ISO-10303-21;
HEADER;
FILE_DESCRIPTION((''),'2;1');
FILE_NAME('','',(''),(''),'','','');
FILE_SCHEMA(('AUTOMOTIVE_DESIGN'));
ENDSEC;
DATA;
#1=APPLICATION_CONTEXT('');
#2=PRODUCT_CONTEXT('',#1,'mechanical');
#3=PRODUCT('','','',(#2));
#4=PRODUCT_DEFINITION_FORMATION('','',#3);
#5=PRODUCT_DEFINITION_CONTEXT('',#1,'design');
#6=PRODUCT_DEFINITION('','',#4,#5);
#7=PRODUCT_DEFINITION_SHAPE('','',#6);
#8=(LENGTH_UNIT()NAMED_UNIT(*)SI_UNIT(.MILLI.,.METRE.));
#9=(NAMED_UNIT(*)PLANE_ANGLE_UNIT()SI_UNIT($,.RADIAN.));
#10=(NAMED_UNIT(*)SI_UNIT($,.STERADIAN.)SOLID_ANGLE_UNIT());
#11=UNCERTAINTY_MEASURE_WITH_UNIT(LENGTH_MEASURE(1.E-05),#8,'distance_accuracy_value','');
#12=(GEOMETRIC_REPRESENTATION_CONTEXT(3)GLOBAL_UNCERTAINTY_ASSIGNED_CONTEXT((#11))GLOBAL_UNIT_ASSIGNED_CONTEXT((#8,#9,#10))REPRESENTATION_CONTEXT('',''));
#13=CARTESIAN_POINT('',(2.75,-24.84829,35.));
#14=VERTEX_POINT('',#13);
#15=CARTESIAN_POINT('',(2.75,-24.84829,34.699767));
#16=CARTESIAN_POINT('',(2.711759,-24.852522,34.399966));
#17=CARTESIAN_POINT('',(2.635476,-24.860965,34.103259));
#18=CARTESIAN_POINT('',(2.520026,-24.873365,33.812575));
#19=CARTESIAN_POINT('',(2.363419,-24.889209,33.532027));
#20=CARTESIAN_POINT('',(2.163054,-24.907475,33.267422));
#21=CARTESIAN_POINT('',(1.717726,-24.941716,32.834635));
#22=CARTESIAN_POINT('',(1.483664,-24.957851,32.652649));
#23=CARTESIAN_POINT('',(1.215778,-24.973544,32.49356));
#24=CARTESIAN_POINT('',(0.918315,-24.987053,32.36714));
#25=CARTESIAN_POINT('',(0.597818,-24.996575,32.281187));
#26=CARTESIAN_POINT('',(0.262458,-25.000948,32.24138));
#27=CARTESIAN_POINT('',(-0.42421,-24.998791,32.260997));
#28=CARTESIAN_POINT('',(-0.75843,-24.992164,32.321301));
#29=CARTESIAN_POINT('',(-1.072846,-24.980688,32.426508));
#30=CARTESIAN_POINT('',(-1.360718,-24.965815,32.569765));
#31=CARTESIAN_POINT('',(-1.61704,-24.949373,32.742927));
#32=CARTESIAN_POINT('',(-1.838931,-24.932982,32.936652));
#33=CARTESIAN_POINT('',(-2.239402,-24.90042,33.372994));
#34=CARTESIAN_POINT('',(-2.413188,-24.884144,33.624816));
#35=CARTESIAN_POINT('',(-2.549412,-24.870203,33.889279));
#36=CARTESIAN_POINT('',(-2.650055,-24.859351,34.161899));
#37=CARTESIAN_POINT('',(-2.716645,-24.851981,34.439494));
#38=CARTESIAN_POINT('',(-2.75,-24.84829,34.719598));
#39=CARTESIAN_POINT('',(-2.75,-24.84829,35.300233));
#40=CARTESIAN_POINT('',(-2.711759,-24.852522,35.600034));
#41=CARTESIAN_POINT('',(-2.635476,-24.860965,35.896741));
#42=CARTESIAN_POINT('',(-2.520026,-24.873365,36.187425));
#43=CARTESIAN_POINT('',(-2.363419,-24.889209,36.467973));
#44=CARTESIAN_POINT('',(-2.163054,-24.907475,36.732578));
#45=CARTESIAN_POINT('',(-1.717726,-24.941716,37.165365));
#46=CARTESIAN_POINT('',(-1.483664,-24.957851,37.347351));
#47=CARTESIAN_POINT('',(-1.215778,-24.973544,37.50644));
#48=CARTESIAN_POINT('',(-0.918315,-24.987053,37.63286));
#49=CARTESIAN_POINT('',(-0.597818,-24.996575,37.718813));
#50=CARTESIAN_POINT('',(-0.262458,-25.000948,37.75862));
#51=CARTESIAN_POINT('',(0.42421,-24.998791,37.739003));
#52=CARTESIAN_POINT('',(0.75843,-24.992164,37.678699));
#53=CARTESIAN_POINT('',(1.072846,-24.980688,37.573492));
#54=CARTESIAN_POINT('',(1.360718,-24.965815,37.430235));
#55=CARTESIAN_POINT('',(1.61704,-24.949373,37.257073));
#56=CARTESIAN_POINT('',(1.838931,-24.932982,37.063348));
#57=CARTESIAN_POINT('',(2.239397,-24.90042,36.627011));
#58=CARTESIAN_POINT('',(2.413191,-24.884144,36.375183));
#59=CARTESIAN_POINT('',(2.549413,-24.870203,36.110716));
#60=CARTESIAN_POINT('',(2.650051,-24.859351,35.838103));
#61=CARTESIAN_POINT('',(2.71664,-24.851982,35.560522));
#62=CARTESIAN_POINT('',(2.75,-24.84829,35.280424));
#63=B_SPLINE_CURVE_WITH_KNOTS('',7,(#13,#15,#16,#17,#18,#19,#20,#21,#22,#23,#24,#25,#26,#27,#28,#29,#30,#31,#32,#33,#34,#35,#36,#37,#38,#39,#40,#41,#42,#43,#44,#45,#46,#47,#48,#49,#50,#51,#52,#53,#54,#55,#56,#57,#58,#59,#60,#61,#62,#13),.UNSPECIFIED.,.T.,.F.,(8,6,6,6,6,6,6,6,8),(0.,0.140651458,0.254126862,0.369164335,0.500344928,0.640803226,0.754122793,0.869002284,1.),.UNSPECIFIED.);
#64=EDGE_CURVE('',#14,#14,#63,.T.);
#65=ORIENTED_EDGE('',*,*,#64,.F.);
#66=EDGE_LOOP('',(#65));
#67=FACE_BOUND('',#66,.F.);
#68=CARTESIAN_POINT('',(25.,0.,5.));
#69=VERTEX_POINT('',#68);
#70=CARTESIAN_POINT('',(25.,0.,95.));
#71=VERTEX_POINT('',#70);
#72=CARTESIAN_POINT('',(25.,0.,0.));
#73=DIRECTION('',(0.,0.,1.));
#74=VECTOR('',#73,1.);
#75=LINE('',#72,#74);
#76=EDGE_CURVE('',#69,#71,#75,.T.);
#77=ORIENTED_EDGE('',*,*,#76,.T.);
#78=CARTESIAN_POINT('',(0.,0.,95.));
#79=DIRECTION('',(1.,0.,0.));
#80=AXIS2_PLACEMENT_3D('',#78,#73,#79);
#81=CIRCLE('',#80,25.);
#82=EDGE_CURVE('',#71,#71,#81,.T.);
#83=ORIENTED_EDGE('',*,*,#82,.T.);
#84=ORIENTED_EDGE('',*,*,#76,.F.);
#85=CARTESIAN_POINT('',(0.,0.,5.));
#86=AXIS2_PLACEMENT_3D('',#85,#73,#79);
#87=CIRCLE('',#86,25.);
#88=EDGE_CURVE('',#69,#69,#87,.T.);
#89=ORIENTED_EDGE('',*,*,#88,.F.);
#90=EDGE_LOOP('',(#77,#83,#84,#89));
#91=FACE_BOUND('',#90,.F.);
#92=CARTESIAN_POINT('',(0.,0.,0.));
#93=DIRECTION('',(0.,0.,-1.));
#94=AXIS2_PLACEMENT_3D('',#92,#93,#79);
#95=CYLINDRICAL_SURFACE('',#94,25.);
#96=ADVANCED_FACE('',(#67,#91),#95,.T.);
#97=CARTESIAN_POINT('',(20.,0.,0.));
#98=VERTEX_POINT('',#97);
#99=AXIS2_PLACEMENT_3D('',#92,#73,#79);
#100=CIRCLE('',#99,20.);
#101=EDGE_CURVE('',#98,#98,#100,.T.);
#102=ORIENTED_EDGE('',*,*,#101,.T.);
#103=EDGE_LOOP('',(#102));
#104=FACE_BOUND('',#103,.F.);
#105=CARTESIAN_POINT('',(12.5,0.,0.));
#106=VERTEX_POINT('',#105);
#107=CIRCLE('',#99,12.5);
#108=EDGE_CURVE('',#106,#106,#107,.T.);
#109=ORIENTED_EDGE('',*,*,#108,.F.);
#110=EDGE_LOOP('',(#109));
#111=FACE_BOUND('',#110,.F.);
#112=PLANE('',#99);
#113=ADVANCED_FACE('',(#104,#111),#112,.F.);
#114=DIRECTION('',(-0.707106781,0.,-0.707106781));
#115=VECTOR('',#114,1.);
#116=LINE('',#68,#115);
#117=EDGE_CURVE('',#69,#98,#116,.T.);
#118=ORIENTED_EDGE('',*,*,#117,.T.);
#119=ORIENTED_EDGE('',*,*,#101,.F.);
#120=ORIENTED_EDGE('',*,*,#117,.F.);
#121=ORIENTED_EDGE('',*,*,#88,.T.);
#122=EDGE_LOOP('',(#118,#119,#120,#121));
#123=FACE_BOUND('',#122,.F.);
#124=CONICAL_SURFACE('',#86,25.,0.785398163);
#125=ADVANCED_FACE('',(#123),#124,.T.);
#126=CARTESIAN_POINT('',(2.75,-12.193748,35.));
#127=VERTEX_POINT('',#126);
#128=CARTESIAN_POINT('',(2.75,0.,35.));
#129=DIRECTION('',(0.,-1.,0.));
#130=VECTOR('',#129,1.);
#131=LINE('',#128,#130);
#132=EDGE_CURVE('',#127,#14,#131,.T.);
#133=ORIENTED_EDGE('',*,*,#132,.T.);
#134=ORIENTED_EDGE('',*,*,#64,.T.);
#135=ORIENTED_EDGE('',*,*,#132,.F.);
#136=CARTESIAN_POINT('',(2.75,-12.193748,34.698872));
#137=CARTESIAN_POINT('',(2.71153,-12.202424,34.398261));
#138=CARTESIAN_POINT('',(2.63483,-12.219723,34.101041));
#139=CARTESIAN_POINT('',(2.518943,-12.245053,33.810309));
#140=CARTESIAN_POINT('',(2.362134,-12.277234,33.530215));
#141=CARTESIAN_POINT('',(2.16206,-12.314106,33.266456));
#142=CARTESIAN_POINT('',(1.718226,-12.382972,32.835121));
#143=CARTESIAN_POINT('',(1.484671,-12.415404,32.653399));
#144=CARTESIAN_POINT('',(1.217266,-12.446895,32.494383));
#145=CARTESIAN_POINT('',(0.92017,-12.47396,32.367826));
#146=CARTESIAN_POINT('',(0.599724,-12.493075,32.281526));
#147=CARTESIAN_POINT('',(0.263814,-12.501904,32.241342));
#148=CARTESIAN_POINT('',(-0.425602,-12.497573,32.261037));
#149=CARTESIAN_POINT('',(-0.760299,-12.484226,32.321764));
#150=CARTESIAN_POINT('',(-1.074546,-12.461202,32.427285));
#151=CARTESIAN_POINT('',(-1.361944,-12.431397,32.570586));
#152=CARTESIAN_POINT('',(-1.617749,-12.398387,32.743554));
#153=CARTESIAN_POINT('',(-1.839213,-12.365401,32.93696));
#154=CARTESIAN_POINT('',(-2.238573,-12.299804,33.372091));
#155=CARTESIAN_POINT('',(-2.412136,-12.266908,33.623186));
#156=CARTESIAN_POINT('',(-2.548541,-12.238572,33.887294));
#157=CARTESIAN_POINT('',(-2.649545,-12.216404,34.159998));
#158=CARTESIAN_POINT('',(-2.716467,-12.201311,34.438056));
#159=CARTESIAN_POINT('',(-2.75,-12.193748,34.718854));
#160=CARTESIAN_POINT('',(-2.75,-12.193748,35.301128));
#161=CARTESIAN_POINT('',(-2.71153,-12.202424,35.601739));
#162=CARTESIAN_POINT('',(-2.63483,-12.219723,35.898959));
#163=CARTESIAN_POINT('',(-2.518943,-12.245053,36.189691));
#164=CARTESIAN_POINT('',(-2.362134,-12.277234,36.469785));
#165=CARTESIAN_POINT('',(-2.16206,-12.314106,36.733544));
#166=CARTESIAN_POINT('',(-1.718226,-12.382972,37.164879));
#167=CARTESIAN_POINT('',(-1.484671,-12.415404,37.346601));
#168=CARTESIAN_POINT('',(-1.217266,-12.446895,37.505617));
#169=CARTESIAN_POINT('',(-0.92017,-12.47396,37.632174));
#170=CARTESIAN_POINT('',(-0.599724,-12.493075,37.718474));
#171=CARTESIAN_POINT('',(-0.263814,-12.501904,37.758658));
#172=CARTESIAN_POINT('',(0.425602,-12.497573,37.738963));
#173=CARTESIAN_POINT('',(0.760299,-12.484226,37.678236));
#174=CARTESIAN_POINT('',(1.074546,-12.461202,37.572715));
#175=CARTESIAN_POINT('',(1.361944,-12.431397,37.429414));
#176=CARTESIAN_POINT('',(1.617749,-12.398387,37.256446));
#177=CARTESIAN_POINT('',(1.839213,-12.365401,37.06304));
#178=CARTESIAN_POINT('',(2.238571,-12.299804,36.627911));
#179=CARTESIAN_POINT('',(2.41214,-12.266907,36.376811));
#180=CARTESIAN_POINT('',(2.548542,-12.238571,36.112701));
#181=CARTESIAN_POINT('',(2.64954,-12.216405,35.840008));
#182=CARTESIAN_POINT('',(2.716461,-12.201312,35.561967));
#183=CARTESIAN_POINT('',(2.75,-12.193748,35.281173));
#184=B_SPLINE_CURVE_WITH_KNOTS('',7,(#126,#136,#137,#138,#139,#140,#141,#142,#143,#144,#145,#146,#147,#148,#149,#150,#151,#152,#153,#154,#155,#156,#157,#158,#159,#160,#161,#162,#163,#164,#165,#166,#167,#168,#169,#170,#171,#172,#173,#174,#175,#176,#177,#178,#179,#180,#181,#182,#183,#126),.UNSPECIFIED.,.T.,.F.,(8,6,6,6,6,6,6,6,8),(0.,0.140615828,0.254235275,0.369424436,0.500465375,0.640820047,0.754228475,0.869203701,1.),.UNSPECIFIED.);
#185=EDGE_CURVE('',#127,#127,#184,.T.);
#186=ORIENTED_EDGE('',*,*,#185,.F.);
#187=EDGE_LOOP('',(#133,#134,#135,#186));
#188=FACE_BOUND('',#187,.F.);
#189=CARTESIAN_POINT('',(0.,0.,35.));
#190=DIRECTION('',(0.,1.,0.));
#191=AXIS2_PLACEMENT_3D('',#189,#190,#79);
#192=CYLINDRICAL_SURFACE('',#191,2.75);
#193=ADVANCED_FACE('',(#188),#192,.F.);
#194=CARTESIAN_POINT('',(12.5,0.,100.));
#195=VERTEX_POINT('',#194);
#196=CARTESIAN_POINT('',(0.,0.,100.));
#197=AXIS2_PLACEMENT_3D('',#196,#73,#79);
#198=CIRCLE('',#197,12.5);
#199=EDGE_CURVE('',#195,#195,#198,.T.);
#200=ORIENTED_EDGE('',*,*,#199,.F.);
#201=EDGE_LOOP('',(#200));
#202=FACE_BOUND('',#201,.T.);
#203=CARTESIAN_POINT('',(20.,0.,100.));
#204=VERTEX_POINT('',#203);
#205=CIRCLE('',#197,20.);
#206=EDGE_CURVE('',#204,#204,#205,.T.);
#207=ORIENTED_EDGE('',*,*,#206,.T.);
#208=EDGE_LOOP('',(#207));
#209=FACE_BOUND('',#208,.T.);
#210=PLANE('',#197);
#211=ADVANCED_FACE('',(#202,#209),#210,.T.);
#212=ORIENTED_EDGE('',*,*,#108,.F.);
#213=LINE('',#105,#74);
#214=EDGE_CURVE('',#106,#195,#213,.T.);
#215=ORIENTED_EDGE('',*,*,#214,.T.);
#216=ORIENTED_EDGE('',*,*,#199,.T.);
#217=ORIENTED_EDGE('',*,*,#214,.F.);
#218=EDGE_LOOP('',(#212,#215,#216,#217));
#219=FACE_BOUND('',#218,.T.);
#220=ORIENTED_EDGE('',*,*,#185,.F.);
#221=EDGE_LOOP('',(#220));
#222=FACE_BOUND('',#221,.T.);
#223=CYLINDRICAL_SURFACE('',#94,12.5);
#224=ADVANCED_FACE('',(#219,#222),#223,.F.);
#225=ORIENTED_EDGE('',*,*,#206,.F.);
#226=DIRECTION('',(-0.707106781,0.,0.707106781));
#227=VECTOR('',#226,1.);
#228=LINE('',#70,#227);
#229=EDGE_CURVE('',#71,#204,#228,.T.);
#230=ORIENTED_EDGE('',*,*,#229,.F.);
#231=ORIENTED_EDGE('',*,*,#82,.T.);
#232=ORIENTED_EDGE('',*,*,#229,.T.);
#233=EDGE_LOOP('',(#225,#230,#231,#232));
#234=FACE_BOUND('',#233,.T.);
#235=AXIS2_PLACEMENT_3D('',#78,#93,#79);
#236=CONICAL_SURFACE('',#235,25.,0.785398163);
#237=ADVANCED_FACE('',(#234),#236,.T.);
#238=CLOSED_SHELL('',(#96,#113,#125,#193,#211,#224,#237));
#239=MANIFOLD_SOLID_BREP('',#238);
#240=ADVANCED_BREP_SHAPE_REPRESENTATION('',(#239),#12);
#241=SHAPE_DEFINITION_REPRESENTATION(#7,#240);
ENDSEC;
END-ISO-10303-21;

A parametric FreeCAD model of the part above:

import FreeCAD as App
import Part
import Sketcher
from FreeCAD import Vector
Q = App.Units.Quantity


def edges_at(feature, points):
    """Names of the edges that pass closest to the given points."""
    edges = feature.Shape.Edges
    near = lambda p: min(range(len(edges)), key=lambda i: edges[i].distToShape(Part.Vertex(*p))[0])
    return sorted({f"Edge{near(p) + 1}" for p in points})

doc = App.newDocument("Part")
params = doc.addObject("Spreadsheet::Sheet", "Params")
for row, (alias, value) in enumerate([
    ("sketch1_diameter", "50 mm"),
    ("sketch1_diameter2", "25 mm"),
    ("pad1_length", "100 mm"),
    ("chamfer_size", "5 mm"),
    ("chamfer2_size", "5 mm"),
    ("sketch2_diameter", "5.5 mm"),
], start=1):
    params.set(f"A{row}", alias)
    params.set(f"B{row}", "=" + value)
    params.setAlias(f"B{row}", alias)

body = doc.addObject("PartDesign::Body", "Body")

# Sketch on XY plane
sketch1 = body.newObject("Sketcher::SketchObject", "Sketch")
sketch1.AttachmentSupport = (doc.getObject("XY_Plane"), [""])
sketch1.MapMode = "FlatFace"
sketch1.addGeometry(Part.Circle(Vector(0, 0, 0), Vector(0, 0, 1), 25), False)
sketch1.addGeometry(Part.Circle(Vector(0, 0, 0), Vector(0, 0, 1), 12), False)
sketch1.addConstraint(Sketcher.Constraint("Coincident", 0, 3, -1, 1))
sketch1.addConstraint(Sketcher.Constraint("Coincident", 1, 3, -1, 1))
sketch1.addConstraint(Sketcher.Constraint("Diameter", 0, Q("50 mm")))
sketch1.addConstraint(Sketcher.Constraint("Diameter", 1, Q("25 mm")))
sketch1.setExpression("Constraints[2]", "Params.sketch1_diameter")
sketch1.setExpression("Constraints[3]", "Params.sketch1_diameter2")
pad1 = body.newObject("PartDesign::Pad", "Pad")
pad1.Profile = sketch1
pad1.setExpression("Length", "Params.pad1_length")
doc.recompute()

chamfer = body.newObject("PartDesign::Chamfer", "Chamfer")
chamfer.Base = (pad1, edges_at(pad1, [(-25, 0, 100)]))
chamfer.setExpression("Size", "Params.chamfer_size")
doc.recompute()

chamfer2 = body.newObject("PartDesign::Chamfer", "Chamfer001")
chamfer2.Base = (chamfer, edges_at(chamfer, [(-25, 0, 0)]))
chamfer2.setExpression("Size", "Params.chamfer2_size")

# Sketch on XZ plane
sketch2 = body.newObject("Sketcher::SketchObject", "Sketch001")
sketch2.AttachmentSupport = (doc.getObject("XZ_Plane"), [""])
sketch2.MapMode = "FlatFace"
sketch2.addGeometry(Part.Circle(Vector(0, 35, 0), Vector(0, 0, 1), 2.8), False)
sketch2.addConstraint(Sketcher.Constraint("PointOnObject", 0, 3, -2))
sketch2.addConstraint(Sketcher.Constraint("Diameter", 0, Q("5.5 mm")))
sketch2.addConstraint(Sketcher.Constraint("DistanceY", -1, 1, 0, 3, Q("35 mm")))
sketch2.setExpression("Constraints[1]", "Params.sketch2_diameter")
pocket1 = body.newObject("PartDesign::Pocket", "Pocket")
pocket1.Profile = sketch2
pocket1.Type = "ThroughAll"
pocket1.Reversed = True

doc.recompute()
